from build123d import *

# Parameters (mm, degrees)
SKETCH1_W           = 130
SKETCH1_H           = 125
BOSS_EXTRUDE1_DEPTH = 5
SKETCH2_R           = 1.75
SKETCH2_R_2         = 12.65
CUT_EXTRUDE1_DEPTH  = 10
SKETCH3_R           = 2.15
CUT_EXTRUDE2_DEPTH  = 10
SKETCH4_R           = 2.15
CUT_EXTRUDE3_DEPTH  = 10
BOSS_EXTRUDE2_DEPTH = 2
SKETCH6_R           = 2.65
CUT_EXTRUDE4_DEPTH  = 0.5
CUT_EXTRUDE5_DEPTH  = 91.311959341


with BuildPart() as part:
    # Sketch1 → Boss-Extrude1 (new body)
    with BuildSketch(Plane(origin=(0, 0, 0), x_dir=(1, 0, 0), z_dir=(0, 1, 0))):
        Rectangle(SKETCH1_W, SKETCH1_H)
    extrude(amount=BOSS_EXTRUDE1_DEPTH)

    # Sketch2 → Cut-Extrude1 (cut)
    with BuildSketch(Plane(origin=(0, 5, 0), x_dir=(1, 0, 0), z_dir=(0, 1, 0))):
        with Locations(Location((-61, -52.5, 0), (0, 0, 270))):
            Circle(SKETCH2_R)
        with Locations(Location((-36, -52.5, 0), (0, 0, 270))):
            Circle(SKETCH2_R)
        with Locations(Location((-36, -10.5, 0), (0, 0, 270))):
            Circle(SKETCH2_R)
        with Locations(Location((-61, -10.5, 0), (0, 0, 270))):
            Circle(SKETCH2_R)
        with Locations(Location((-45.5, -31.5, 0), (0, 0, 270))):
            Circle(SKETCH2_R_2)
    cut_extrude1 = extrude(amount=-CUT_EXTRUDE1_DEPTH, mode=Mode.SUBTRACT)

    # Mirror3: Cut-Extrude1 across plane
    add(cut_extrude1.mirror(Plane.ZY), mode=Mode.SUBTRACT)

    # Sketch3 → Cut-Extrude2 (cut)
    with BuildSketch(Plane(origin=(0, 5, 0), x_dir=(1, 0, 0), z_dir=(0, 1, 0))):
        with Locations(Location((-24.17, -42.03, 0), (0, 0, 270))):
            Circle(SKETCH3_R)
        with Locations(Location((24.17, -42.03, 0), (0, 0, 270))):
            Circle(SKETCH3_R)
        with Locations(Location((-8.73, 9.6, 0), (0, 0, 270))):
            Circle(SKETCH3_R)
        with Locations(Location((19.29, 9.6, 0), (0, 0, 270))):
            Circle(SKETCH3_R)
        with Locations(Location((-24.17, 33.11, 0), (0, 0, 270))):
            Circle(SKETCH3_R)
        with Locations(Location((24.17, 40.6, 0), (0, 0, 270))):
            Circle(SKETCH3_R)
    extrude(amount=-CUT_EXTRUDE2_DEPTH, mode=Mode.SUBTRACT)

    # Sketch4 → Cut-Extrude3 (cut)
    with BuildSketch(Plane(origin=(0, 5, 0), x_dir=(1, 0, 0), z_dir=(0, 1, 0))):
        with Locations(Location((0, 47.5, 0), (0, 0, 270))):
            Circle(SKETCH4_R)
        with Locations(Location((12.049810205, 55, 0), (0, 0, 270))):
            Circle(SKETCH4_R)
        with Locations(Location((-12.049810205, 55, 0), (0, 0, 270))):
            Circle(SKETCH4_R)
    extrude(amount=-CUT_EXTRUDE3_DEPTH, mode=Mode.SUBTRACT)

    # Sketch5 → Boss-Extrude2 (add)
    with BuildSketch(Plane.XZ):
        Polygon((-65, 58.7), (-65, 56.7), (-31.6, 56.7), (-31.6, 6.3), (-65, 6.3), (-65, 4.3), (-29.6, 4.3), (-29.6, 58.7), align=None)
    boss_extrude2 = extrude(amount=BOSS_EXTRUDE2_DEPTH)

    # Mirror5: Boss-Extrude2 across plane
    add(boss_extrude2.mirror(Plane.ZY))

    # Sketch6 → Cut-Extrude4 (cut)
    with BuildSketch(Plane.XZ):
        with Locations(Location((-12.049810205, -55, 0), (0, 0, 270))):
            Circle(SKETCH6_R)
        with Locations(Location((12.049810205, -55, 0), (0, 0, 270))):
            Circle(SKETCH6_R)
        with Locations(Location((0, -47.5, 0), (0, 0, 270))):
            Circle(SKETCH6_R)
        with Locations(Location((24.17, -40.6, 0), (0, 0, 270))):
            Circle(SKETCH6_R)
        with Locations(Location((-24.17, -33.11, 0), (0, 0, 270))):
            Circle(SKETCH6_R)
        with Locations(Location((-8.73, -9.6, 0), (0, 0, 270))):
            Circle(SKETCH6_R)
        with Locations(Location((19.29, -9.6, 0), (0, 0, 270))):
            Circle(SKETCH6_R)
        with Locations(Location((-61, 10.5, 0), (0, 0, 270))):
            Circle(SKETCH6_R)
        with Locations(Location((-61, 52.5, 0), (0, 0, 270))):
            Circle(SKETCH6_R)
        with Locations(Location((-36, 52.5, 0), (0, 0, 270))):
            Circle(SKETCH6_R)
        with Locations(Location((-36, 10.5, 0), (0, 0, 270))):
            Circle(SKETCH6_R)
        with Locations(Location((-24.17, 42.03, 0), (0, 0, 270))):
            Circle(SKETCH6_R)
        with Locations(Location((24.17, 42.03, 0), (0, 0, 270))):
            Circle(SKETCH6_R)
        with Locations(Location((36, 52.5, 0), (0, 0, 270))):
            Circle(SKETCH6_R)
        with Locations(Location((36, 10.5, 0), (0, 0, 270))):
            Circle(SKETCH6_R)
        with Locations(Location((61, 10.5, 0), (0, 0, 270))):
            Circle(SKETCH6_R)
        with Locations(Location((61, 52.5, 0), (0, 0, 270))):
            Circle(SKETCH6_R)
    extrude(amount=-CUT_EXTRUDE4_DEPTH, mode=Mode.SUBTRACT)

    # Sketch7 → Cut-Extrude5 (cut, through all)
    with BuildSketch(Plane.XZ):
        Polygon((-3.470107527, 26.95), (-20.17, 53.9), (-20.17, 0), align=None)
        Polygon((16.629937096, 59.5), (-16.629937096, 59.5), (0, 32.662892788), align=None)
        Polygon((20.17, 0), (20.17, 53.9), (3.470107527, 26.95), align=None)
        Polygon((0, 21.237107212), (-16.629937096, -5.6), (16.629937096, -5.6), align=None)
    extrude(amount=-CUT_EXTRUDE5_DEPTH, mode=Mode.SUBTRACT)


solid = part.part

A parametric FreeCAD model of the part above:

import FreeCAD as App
import Part
import Sketcher
from FreeCAD import Vector


def add_polygon(sketch, points):
    """Adds a closed chain of lines whose ends are joined by coincident constraints."""
    first, n = sketch.GeometryCount, len(points)
    for a, b in zip(points, points[1:] + points[:1]):
        sketch.addGeometry(Part.LineSegment(App.Vector(*a, 0), App.Vector(*b, 0)), False)
    for i in range(n):
        sketch.addConstraint(Sketcher.Constraint("Coincident", first + i, 2, first + (i + 1) % n, 1))

doc = App.newDocument("Part")
body = doc.addObject("PartDesign::Body", "Body")

sketch1 = doc.addObject("Sketcher::SketchObject", "Sketch")
body.addObject(sketch1)
sketch1.AttachmentSupport = (doc.XZ_Plane, [""])
sketch1.MapMode = "FlatFace"
add_polygon(sketch1, [(-65, -62), (-65, 62), (65, 62), (65, -62)])
sketch1.addConstraint(Sketcher.Constraint("Vertical", 0))
sketch1.addConstraint(Sketcher.Constraint("Horizontal", 1))
sketch1.addConstraint(Sketcher.Constraint("Vertical", 2))
sketch1.addConstraint(Sketcher.Constraint("Horizontal", 3))
sketch1.addConstraint(Sketcher.Constraint("Symmetric", 0, 2, 2, 2, -1, 1))
sketch1.addConstraint(Sketcher.Constraint("DistanceX", 1, 1, 1, 2, 130.0))
sketch1.addConstraint(Sketcher.Constraint("DistanceY", 0, 1, 0, 2, 125.0))
pad1 = doc.addObject("PartDesign::Pad", "Pad")
body.addObject(pad1)
pad1.Profile = sketch1
pad1.Length = 5
pad1.Reversed = True

sketch2 = doc.addObject("Sketcher::SketchObject", "Sketch001")
body.addObject(sketch2)
sketch2.AttachmentSupport = (doc.XZ_Plane, [""])
sketch2.MapMode = "FlatFace"
sketch2.AttachmentOffset = App.Placement(Vector(0, 0, -5), App.Rotation())
sketch2.addGeometry(Part.Circle(Vector(-61, 52.5, 0), Vector(0, 0, 1), 1.8), False)
sketch2.addGeometry(Part.Circle(Vector(-36, 52.5, 0), Vector(0, 0, 1), 1.8), False)
sketch2.addGeometry(Part.Circle(Vector(-36, 10.5, 0), Vector(0, 0, 1), 1.8), False)
sketch2.addGeometry(Part.Circle(Vector(-61, 10.5, 0), Vector(0, 0, 1), 1.8), False)
sketch2.addGeometry(Part.Circle(Vector(-45.5, 31.5, 0), Vector(0, 0, 1), 12.7), False)
sketch2.addConstraint(Sketcher.Constraint("Equal", 0, 1))
sketch2.addConstraint(Sketcher.Constraint("Equal", 1, 2))
sketch2.addConstraint(Sketcher.Constraint("Equal", 2, 3))
sketch2.addConstraint(Sketcher.Constraint("Horizontal", 0, 3, 1, 3))
sketch2.addConstraint(Sketcher.Constraint("Horizontal", 2, 3, 3, 3))
sketch2.addConstraint(Sketcher.Constraint("Vertical", 1, 3, 2, 3))
sketch2.addConstraint(Sketcher.Constraint("Vertical", 0, 3, 3, 3))
sketch2.addConstraint(Sketcher.Constraint("Diameter", 0, 3.5))
sketch2.addConstraint(Sketcher.Constraint("Diameter", 4, 25.3))
sketch2.addConstraint(Sketcher.Constraint("DistanceX", 0, 3, -1, 1, 61.0))
sketch2.addConstraint(Sketcher.Constraint("DistanceX", 1, 3, -1, 1, 36.0))
sketch2.addConstraint(Sketcher.Constraint("DistanceY", 2, 3, 1, 3, 42.0))
sketch2.addConstraint(Sketcher.Constraint("DistanceY", 4, 3, 1, 3, 21.0))
sketch2.addConstraint(Sketcher.Constraint("DistanceY", -1, 1, 0, 3, 52.5))
sketch2.addConstraint(Sketcher.Constraint("DistanceX", 4, 3, -1, 1, 45.5))
pocket1 = doc.addObject("PartDesign::Pocket", "Pocket")
body.addObject(pocket1)
pocket1.Profile = sketch2
pocket1.Length = 10
pocket1.Reversed = True
doc.recompute()

mirrored = doc.addObject("PartDesign::Mirrored", "Mirrored")
body.addObject(mirrored)
mirrored.Originals = [pocket1]
mirrored.MirrorPlane = (doc.YZ_Plane, [""])
body.Tip = mirrored

sketch3 = doc.addObject("Sketcher::SketchObject", "Sketch002")
body.addObject(sketch3)
sketch3.AttachmentSupport = (doc.XZ_Plane, [""])
sketch3.MapMode = "FlatFace"
sketch3.AttachmentOffset = App.Placement(Vector(0, 0, -5), App.Rotation())
sketch3.addGeometry(Part.Circle(Vector(-24.2, 42, 0), Vector(0, 0, 1), 2.1), False)
sketch3.addGeometry(Part.Circle(Vector(24.2, 42, 0), Vector(0, 0, 1), 2.1), False)
sketch3.addGeometry(Part.Circle(Vector(-8.7, -9.6, 0), Vector(0, 0, 1), 2.1), False)
sketch3.addGeometry(Part.Circle(Vector(19.3, -9.6, 0), Vector(0, 0, 1), 2.1), False)
sketch3.addGeometry(Part.Circle(Vector(-24.2, -33.1, 0), Vector(0, 0, 1), 2.1), False)
sketch3.addGeometry(Part.Circle(Vector(24.2, -40.6, 0), Vector(0, 0, 1), 2.1), False)
sketch3.addConstraint(Sketcher.Constraint("Equal", 0, 1))
sketch3.addConstraint(Sketcher.Constraint("Equal", 1, 2))
sketch3.addConstraint(Sketcher.Constraint("Equal", 2, 3))
sketch3.addConstraint(Sketcher.Constraint("Equal", 3, 4))
sketch3.addConstraint(Sketcher.Constraint("Equal", 4, 5))
sketch3.addConstraint(Sketcher.Constraint("Symmetric", 0, 3, 1, 3, -2))
sketch3.addConstraint(Sketcher.Constraint("Horizontal", 2, 3, 3, 3))
sketch3.addConstraint(Sketcher.Constraint("Vertical", 0, 3, 4, 3))
sketch3.addConstraint(Sketcher.Constraint("Vertical", 1, 3, 5, 3))
sketch3.addConstraint(Sketcher.Constraint("Diameter", 0, 4.3))
sketch3.addConstraint(Sketcher.Constraint("DistanceY", 5, 3, 3, 3, 31.0))
sketch3.addConstraint(Sketcher.Constraint("DistanceY", 2, 3, -1, 1, 9.6))
sketch3.addConstraint(Sketcher.Constraint("DistanceX", 2, 3, 1, 3, 32.9))
sketch3.addConstraint(Sketcher.Constraint("DistanceX", 0, 3, -1, 1, 24.17))
sketch3.addConstraint(Sketcher.Constraint("DistanceY", -1, 1, 0, 3, 42.03))
sketch3.addConstraint(Sketcher.Constraint("DistanceX", -1, 1, 3, 3, 19.29))
sketch3.addConstraint(Sketcher.Constraint("DistanceY", 4, 3, -1, 1, 33.11))
pocket2 = doc.addObject("PartDesign::Pocket", "Pocket001")
body.addObject(pocket2)
pocket2.Profile = sketch3
pocket2.Length = 10
pocket2.Reversed = True

sketch4 = doc.addObject("Sketcher::SketchObject", "Sketch003")
body.addObject(sketch4)
sketch4.AttachmentSupport = (doc.XZ_Plane, [""])
sketch4.MapMode = "FlatFace"
sketch4.AttachmentOffset = App.Placement(Vector(0, 0, -5), App.Rotation())
sketch4.addGeometry(Part.Circle(Vector(0, -47.5, 0), Vector(0, 0, 1), 2.1), False)
sketch4.addGeometry(Part.Circle(Vector(12, -55, 0), Vector(0, 0, 1), 2.1), False)
sketch4.addGeometry(Part.Circle(Vector(-12, -55, 0), Vector(0, 0, 1), 2.1), False)
sketch4.addConstraint(Sketcher.Constraint("Equal", 0, 1))
sketch4.addConstraint(Sketcher.Constraint("Equal", 1, 2))
sketch4.addConstraint(Sketcher.Constraint("Symmetric", 1, 3, 2, 3, -2))
sketch4.addConstraint(Sketcher.Constraint("PointOnObject", 0, 3, -2))
sketch4.addConstraint(Sketcher.Constraint("Diameter", 0, 4.3))
sketch4.addConstraint(Sketcher.Constraint("DistanceY", 1, 3, -1, 1, 55.0))
sketch4.addConstraint(Sketcher.Constraint("DistanceY", 0, 3, -1, 1, 47.5))
sketch4.addConstraint(Sketcher.Constraint("DistanceX", -1, 1, 1, 3, 12.04981))
pocket3 = doc.addObject("PartDesign::Pocket", "Pocket002")
body.addObject(pocket3)
pocket3.Profile = sketch4
pocket3.Length = 10
pocket3.Reversed = True

sketch5 = doc.addObject("Sketcher::SketchObject", "Sketch004")
body.addObject(sketch5)
sketch5.AttachmentSupport = (doc.XZ_Plane, [""])
sketch5.MapMode = "FlatFace"
add_polygon(sketch5, [(-65, 58.7), (-65, 56.7), (-31.6, 56.7), (-31.6, 6.3), (-65, 6.3), (-65, 4.3), (-29.6, 4.3), (-29.6, 58.7)])
sketch5.addConstraint(Sketcher.Constraint("Vertical", 0))
sketch5.addConstraint(Sketcher.Constraint("Horizontal", 1))
sketch5.addConstraint(Sketcher.Constraint("Vertical", 2))
sketch5.addConstraint(Sketcher.Constraint("Horizontal", 3))
sketch5.addConstraint(Sketcher.Constraint("Vertical", 4))
sketch5.addConstraint(Sketcher.Constraint("Horizontal", 5))
sketch5.addConstraint(Sketcher.Constraint("Vertical", 6))
sketch5.addConstraint(Sketcher.Constraint("Horizontal", 7))
sketch5.addConstraint(Sketcher.Constraint("Vertical", 0, 2, 3, 2))
sketch5.addConstraint(Sketcher.Constraint("Equal", 0, 4))
sketch5.addConstraint(Sketcher.Constraint("DistanceY", 0, 2, 0, 1, 2.0))
sketch5.addConstraint(Sketcher.Constraint("DistanceX", 1, 1, 1, 2, 33.4))
sketch5.addConstraint(Sketcher.Constraint("DistanceX", 5, 1, 5, 2, 35.4))
sketch5.addConstraint(Sketcher.Constraint("DistanceY", 2, 2, 2, 1, 50.4))
sketch5.addConstraint(Sketcher.Constraint("DistanceX", 0, 2, -1, 1, 65.0))
sketch5.addConstraint(Sketcher.Constraint("DistanceY", -1, 1, 0, 2, 56.7))
pad2 = doc.addObject("PartDesign::Pad", "Pad001")
body.addObject(pad2)
pad2.Profile = sketch5
pad2.Length = 2
doc.recompute()

mirrored2 = doc.addObject("PartDesign::Mirrored", "Mirrored001")
body.addObject(mirrored2)
mirrored2.Originals = [pad2]
mirrored2.MirrorPlane = (doc.YZ_Plane, [""])
body.Tip = mirrored2

sketch6 = doc.addObject("Sketcher::SketchObject", "Sketch005")
body.addObject(sketch6)
sketch6.AttachmentSupport = (doc.XZ_Plane, [""])
sketch6.MapMode = "FlatFace"
sketch6.addGeometry(Part.Circle(Vector(-12, -55, 0), Vector(0, 0, 1), 2.6), False)
sketch6.addGeometry(Part.Circle(Vector(12, -55, 0), Vector(0, 0, 1), 2.6), False)
sketch6.addGeometry(Part.Circle(Vector(0, -47.5, 0), Vector(0, 0, 1), 2.6), False)
sketch6.addGeometry(Part.Circle(Vector(24.2, -40.6, 0), Vector(0, 0, 1), 2.6), False)
sketch6.addGeometry(Part.Circle(Vector(-24.2, -33.1, 0), Vector(0, 0, 1), 2.6), False)
sketch6.addGeometry(Part.Circle(Vector(-8.7, -9.6, 0), Vector(0, 0, 1), 2.6), False)
sketch6.addGeometry(Part.Circle(Vector(19.3, -9.6, 0), Vector(0, 0, 1), 2.6), False)
sketch6.addGeometry(Part.Circle(Vector(-61, 10.5, 0), Vector(0, 0, 1), 2.6), False)
sketch6.addGeometry(Part.Circle(Vector(-61, 52.5, 0), Vector(0, 0, 1), 2.6), False)
sketch6.addGeometry(Part.Circle(Vector(-36, 52.5, 0), Vector(0, 0, 1), 2.6), False)
sketch6.addGeometry(Part.Circle(Vector(-36, 10.5, 0), Vector(0, 0, 1), 2.6), False)
sketch6.addGeometry(Part.Circle(Vector(-24.2, 42, 0), Vector(0, 0, 1), 2.6), False)
sketch6.addGeometry(Part.Circle(Vector(24.2, 42, 0), Vector(0, 0, 1), 2.6), False)
sketch6.addGeometry(Part.Circle(Vector(36, 52.5, 0), Vector(0, 0, 1), 2.6), False)
sketch6.addGeometry(Part.Circle(Vector(36, 10.5, 0), Vector(0, 0, 1), 2.6), False)
sketch6.addGeometry(Part.Circle(Vector(61, 10.5, 0), Vector(0, 0, 1), 2.6), False)
sketch6.addGeometry(Part.Circle(Vector(61, 52.5, 0), Vector(0, 0, 1), 2.6), False)
sketch6.addConstraint(Sketcher.Constraint("Equal", 0, 1))
sketch6.addConstraint(Sketcher.Constraint("Equal", 1, 2))
sketch6.addConstraint(Sketcher.Constraint("Equal", 2, 3))
sketch6.addConstraint(Sketcher.Constraint("Equal", 3, 4))
sketch6.addConstraint(Sketcher.Constraint("Equal", 4, 5))
sketch6.addConstraint(Sketcher.Constraint("Equal", 5, 6))
sketch6.addConstraint(Sketcher.Constraint("Equal", 6, 7))
sketch6.addConstraint(Sketcher.Constraint("Equal", 7, 8))
sketch6.addConstraint(Sketcher.Constraint("Equal", 8, 9))
sketch6.addConstraint(Sketcher.Constraint("Equal", 9, 10))
sketch6.addConstraint(Sketcher.Constraint("Equal", 10, 11))
sketch6.addConstraint(Sketcher.Constraint("Equal", 11, 12))
sketch6.addConstraint(Sketcher.Constraint("Equal", 12, 13))
sketch6.addConstraint(Sketcher.Constraint("Equal", 13, 14))
sketch6.addConstraint(Sketcher.Constraint("Equal", 14, 15))
sketch6.addConstraint(Sketcher.Constraint("Equal", 15, 16))
sketch6.addConstraint(Sketcher.Constraint("Symmetric", 0, 3, 1, 3, -2))
sketch6.addConstraint(Sketcher.Constraint("Symmetric", 11, 3, 12, 3, -2))
sketch6.addConstraint(Sketcher.Constraint("Symmetric", 9, 3, 13, 3, -2))
sketch6.addConstraint(Sketcher.Constraint("Symmetric", 10, 3, 14, 3, -2))
sketch6.addConstraint(Sketcher.Constraint("Symmetric", 7, 3, 15, 3, -2))
sketch6.addConstraint(Sketcher.Constraint("Symmetric", 8, 3, 16, 3, -2))
sketch6.addConstraint(Sketcher.Constraint("PointOnObject", 2, 3, -2))
sketch6.addConstraint(Sketcher.Constraint("Horizontal", 5, 3, 6, 3))
sketch6.addConstraint(Sketcher.Constraint("Horizontal", 8, 3, 9, 3))
sketch6.addConstraint(Sketcher.Constraint("Horizontal", 7, 3, 10, 3))
sketch6.addConstraint(Sketcher.Constraint("Vertical", 7, 3, 8, 3))
sketch6.addConstraint(Sketcher.Constraint("Vertical", 9, 3, 10, 3))
sketch6.addConstraint(Sketcher.Constraint("Vertical", 4, 3, 11, 3))
sketch6.addConstraint(Sketcher.Constraint("Vertical", 3, 3, 12, 3))
sketch6.addConstraint(Sketcher.Constraint("Diameter", 0, 5.3))
sketch6.addConstraint(Sketcher.Constraint("DistanceY", 0, 3, -1, 1, 55.0))
sketch6.addConstraint(Sketcher.Constraint("DistanceX", 7, 3, -1, 1, 61.0))
sketch6.addConstraint(Sketcher.Constraint("DistanceX", 9, 3, -1, 1, 36.0))
sketch6.addConstraint(Sketcher.Constraint("DistanceY", 3, 3, 5, 3, 31.0))
sketch6.addConstraint(Sketcher.Constraint("DistanceY", 2, 3, 7, 3, 58.0))
sketch6.addConstraint(Sketcher.Constraint("DistanceY", 7, 3, 8, 3, 42.0))
sketch6.addConstraint(Sketcher.Constraint("DistanceY", 2, 3, -1, 1, 47.5))
sketch6.addConstraint(Sketcher.Constraint("DistanceY", 3, 3, -1, 1, 40.6))
sketch6.addConstraint(Sketcher.Constraint("DistanceX", 5, 3, 3, 3, 32.9))
sketch6.addConstraint(Sketcher.Constraint("DistanceX", -1, 1, 3, 3, 24.17))
sketch6.addConstraint(Sketcher.Constraint("DistanceY", 4, 3, -1, 1, 33.11))
sketch6.addConstraint(Sketcher.Constraint("DistanceX", -1, 1, 6, 3, 19.29))
sketch6.addConstraint(Sketcher.Constraint("DistanceY", -1, 1, 11, 3, 42.03))
sketch6.addConstraint(Sketcher.Constraint("DistanceX", 0, 3, -1, 1, 12.04981))
pocket4 = doc.addObject("PartDesign::Pocket", "Pocket003")
body.addObject(pocket4)
pocket4.Profile = sketch6
pocket4.Length = 0.5

sketch7 = doc.addObject("Sketcher::SketchObject", "Sketch006")
body.addObject(sketch7)
sketch7.AttachmentSupport = (doc.XZ_Plane, [""])
sketch7.MapMode = "FlatFace"
add_polygon(sketch7, [(-3, 27), (-20, 54), (-20, 0)])
add_polygon(sketch7, [(17, 60), (-17, 60), (0, 33)])
add_polygon(sketch7, [(20, 0), (20, 54), (3, 27)])
add_polygon(sketch7, [(0, 21), (-17, -6), (17, -6)])
sketch7.addConstraint(Sketcher.Constraint("Vertical", 1))
sketch7.addConstraint(Sketcher.Constraint("Horizontal", 3))
sketch7.addConstraint(Sketcher.Constraint("Vertical", 6))
sketch7.addConstraint(Sketcher.Constraint("Horizontal", 10))
sketch7.addConstraint(Sketcher.Constraint("Symmetric", 1, 2, 8, 2, -1, 1))
sketch7.addConstraint(Sketcher.Constraint("Symmetric", 2, 2, 7, 2, -2))
sketch7.addConstraint(Sketcher.Constraint("PointOnObject", 1, 2, -1))
sketch7.addConstraint(Sketcher.Constraint("PointOnObject", 4, 2, -2))
sketch7.addConstraint(Sketcher.Constraint("PointOnObject", 11, 2, -2))
sketch7.addConstraint(Sketcher.Constraint("Parallel", 0, 4))
sketch7.addConstraint(Sketcher.Constraint("Parallel", 2, 5))
sketch7.addConstraint(Sketcher.Constraint("Parallel", 5, 7))
sketch7.addConstraint(Sketcher.Constraint("Parallel", 4, 8))
sketch7.addConstraint(Sketcher.Constraint("Parallel", 7, 9))
sketch7.addConstraint(Sketcher.Constraint("Parallel", 8, 11))
sketch7.addConstraint(Sketcher.Constraint("Vertical", 3, 2, 9, 2))
sketch7.addConstraint(Sketcher.Constraint("DistanceY", 1, 2, 1, 1, 53.9))
sketch7.addConstraint(Sketcher.Constraint("DistanceY", -1, 1, 3, 2, 59.5))
sketch7.addConstraint(Sketcher.Constraint("DistanceY", 9, 2, -1, 1, 5.6))
sketch7.addConstraint(Sketcher.Constraint("DistanceX", 0, 2, -1, 1, 20.17))
sketch7.addConstraint(Sketcher.Constraint("DistanceX", 3, 2, 3, 1, 33.259874))
sketch7.addConstraint(Sketcher.Constraint("DistanceX", 3, 2, 2, 2, 13.15983))
pocket5 = doc.addObject("PartDesign::Pocket", "Pocket004")
body.addObject(pocket5)
pocket5.Profile = sketch7
pocket5.Type = "ThroughAll"

doc.recompute()
